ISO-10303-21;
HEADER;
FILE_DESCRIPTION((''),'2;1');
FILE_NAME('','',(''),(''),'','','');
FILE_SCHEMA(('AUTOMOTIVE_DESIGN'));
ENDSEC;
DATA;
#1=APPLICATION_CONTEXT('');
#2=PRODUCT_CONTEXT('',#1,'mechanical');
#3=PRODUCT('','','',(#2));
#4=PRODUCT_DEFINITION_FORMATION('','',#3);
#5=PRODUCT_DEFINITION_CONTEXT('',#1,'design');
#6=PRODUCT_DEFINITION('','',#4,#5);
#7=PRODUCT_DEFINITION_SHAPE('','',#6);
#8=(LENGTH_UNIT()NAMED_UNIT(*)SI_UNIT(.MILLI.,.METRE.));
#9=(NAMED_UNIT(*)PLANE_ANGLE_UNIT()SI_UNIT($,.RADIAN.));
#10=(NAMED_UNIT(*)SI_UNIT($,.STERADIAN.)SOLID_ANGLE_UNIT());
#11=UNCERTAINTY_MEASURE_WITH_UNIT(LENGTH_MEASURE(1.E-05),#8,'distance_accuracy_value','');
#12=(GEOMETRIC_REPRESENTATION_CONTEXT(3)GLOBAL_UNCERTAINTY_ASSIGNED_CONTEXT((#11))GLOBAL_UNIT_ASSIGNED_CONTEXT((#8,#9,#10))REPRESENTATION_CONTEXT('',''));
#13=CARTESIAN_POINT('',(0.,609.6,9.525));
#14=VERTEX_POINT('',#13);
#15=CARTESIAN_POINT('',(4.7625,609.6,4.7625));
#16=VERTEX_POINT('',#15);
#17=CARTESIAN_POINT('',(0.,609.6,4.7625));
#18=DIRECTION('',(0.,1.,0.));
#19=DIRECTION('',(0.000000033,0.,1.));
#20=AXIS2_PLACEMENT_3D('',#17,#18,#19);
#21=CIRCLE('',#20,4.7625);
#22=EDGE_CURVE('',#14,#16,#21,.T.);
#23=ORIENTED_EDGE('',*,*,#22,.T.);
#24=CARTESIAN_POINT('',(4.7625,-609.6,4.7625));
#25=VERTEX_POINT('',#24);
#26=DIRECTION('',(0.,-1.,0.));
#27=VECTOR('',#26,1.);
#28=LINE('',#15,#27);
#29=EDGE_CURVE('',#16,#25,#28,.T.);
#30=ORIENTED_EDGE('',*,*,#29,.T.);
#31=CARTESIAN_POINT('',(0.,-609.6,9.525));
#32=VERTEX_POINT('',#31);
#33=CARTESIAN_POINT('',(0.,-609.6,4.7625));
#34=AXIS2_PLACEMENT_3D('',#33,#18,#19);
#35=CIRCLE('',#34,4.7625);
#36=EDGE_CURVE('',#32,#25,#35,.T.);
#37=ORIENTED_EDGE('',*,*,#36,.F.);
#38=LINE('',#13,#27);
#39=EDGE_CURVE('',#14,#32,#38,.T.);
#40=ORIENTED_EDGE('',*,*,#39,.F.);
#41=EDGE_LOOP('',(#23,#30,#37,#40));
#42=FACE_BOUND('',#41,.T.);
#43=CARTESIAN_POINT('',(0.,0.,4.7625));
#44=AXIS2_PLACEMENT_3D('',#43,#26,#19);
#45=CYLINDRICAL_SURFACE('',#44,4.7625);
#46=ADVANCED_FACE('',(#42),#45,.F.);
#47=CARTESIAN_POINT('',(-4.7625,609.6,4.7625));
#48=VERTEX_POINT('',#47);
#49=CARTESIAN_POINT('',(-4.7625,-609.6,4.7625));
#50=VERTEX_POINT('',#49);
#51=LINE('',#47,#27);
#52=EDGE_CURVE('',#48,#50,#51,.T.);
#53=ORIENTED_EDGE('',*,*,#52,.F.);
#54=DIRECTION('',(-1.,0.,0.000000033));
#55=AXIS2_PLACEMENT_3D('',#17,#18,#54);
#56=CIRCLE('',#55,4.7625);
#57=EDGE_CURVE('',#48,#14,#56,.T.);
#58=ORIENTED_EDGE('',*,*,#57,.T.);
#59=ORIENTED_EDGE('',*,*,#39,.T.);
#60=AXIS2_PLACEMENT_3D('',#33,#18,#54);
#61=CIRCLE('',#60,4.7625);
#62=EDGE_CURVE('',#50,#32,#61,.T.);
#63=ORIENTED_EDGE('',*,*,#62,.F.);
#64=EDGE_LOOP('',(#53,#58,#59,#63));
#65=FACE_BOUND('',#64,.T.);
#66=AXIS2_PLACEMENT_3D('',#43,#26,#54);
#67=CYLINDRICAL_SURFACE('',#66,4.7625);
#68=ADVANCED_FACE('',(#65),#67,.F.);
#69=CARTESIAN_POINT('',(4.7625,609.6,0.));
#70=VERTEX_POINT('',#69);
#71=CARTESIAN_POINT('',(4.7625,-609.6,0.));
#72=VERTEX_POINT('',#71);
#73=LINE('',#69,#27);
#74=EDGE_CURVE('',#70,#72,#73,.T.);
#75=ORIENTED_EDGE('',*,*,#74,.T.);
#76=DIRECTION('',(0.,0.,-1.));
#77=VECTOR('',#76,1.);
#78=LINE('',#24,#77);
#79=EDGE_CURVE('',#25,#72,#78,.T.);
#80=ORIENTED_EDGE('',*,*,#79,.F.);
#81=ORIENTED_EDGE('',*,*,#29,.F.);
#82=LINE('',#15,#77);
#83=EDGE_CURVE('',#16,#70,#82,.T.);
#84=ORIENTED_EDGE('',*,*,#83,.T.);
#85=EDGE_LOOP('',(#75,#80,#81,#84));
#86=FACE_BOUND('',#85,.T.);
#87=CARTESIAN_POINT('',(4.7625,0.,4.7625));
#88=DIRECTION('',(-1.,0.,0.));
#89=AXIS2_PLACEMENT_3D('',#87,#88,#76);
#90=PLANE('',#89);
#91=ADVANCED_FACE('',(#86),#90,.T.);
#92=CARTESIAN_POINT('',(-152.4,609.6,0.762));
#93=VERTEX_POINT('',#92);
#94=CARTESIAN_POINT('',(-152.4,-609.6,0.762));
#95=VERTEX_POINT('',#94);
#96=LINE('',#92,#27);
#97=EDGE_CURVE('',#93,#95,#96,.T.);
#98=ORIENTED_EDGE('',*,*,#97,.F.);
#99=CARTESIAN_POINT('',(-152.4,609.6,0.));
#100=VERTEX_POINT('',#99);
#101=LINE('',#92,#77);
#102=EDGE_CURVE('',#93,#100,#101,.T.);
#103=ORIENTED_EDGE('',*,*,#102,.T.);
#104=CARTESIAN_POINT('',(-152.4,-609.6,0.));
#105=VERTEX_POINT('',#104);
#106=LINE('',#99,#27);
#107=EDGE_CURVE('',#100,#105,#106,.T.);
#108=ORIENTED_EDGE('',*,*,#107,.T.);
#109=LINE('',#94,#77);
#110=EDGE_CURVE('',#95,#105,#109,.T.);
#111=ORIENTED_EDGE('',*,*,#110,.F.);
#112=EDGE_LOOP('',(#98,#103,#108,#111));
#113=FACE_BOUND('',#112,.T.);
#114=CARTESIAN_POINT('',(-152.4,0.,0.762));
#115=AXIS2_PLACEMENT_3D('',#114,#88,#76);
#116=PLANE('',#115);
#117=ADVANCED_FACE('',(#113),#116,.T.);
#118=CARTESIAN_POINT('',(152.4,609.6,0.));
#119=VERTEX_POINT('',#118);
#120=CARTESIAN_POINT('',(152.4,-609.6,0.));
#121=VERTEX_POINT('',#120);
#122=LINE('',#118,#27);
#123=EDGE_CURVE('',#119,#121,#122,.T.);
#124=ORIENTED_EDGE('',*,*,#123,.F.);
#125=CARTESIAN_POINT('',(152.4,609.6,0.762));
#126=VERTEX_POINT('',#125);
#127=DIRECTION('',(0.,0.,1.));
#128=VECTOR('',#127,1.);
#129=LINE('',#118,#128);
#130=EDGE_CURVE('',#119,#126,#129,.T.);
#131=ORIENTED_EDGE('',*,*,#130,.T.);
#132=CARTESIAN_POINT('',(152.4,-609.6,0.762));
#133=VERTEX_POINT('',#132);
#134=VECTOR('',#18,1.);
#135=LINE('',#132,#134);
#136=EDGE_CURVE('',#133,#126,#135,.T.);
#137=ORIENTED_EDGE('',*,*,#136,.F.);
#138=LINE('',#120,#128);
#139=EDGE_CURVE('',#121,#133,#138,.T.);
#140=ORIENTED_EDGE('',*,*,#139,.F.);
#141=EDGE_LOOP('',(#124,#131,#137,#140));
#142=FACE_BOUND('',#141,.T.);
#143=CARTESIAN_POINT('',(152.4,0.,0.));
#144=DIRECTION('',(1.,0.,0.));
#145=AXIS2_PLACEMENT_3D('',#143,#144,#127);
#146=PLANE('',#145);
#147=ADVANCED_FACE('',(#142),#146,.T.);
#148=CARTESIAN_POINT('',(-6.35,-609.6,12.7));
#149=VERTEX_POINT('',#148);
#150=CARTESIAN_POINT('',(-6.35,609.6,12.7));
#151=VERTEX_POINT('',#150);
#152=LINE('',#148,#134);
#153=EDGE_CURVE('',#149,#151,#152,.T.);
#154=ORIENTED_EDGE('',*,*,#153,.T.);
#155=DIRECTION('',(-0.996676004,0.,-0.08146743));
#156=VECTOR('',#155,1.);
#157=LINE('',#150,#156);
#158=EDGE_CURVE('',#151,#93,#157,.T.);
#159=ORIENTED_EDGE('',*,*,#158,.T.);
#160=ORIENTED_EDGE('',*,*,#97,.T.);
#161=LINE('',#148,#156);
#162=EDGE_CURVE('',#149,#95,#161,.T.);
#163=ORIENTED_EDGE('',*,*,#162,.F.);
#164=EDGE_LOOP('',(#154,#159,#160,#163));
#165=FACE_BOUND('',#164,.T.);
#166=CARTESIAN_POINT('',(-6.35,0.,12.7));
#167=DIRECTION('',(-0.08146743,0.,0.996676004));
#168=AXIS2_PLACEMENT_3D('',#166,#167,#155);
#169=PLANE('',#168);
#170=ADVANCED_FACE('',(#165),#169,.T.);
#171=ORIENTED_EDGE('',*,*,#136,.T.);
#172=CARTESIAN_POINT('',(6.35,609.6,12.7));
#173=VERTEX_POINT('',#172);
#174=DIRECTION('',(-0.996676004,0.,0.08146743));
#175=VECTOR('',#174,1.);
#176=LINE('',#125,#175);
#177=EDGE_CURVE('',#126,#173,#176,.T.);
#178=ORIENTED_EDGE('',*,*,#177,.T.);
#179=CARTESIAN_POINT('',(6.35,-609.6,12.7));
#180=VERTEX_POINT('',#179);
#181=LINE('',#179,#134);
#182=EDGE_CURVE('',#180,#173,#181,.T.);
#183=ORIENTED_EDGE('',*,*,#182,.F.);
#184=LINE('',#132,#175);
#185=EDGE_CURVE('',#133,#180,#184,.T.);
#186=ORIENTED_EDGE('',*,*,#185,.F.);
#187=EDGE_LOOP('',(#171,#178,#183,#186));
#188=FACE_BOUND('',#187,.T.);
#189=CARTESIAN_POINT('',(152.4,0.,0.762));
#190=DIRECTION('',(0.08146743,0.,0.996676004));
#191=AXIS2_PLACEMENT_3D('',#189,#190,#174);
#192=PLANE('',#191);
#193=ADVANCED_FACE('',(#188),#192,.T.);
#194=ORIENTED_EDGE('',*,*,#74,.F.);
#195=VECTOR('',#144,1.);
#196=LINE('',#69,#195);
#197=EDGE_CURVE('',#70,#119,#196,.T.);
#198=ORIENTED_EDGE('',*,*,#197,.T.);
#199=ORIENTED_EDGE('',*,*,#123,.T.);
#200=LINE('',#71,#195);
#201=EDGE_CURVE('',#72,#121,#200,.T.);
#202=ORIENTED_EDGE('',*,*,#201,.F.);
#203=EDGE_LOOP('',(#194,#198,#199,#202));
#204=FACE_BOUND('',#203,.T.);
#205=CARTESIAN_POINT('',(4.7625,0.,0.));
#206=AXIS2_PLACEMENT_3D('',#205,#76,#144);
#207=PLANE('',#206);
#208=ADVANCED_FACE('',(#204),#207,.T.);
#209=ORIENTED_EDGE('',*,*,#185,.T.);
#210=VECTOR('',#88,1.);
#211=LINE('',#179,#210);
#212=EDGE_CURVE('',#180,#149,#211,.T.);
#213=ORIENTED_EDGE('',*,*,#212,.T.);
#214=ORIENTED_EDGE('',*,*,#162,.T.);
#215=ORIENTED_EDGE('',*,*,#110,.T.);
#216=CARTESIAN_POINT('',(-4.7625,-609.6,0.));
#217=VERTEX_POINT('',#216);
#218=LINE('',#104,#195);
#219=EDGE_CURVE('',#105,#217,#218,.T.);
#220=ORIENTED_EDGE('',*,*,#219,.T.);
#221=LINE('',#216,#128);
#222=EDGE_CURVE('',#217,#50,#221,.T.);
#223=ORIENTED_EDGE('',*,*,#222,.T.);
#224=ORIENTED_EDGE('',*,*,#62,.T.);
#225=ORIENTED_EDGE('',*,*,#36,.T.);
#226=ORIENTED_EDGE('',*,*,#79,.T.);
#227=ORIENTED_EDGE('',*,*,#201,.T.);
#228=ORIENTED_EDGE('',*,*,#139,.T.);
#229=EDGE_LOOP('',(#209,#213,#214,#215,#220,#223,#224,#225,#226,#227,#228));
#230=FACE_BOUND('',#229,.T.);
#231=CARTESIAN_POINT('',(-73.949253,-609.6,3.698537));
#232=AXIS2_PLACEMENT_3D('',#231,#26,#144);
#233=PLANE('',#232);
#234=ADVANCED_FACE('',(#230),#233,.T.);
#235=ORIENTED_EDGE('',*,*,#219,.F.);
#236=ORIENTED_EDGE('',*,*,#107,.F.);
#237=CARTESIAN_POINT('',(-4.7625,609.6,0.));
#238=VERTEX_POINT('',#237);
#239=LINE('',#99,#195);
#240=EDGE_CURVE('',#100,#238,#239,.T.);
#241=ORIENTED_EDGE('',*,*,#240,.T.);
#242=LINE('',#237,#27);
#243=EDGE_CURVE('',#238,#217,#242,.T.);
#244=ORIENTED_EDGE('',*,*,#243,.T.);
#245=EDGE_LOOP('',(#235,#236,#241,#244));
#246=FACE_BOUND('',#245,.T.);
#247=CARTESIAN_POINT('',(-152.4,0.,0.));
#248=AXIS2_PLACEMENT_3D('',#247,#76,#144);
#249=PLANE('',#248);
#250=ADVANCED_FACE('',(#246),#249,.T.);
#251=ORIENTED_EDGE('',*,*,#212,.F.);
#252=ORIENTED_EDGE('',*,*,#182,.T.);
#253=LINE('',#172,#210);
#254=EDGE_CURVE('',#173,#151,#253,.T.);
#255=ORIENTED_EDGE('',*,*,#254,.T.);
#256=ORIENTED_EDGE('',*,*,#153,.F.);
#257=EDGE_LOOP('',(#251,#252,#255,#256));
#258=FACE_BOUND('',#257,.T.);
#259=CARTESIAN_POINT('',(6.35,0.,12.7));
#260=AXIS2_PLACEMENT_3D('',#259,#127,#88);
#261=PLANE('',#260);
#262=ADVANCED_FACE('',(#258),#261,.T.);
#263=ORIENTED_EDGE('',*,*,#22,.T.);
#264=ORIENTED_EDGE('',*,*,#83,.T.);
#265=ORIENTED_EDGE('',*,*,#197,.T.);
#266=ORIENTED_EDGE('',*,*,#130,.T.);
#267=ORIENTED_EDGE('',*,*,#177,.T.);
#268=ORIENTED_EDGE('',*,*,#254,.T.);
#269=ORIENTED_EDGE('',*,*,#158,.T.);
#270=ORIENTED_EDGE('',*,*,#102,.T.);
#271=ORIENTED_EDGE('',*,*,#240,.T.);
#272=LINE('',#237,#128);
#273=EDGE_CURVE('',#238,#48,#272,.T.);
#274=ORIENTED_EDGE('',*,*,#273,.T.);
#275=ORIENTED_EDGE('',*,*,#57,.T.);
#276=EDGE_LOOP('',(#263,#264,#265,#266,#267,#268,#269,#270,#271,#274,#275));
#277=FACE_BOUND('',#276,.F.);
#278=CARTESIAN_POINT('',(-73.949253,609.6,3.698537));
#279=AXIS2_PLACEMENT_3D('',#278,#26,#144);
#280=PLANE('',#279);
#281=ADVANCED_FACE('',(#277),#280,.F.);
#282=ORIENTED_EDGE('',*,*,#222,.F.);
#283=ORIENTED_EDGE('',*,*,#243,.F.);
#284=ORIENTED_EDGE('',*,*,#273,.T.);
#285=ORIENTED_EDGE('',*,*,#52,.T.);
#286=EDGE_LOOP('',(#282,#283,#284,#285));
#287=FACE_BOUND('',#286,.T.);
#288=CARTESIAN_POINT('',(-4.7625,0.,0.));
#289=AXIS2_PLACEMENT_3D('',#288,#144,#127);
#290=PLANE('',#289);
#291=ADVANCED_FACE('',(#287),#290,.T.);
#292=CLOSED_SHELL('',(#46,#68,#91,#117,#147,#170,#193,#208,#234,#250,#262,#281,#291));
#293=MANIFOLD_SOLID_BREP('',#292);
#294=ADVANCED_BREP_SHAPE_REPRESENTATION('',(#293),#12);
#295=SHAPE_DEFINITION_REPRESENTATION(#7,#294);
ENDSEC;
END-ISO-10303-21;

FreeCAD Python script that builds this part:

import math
import FreeCAD as App
import Part
import Sketcher

V = App.Vector
Q = App.Units.Quantity

doc = App.newDocument("Part")
body = doc.addObject("PartDesign::Body", "Body")

sketch1 = body.newObject("Sketcher::SketchObject", "Sketch")
sketch1.AttachmentSupport = (doc.getObject("XZ_Plane"), [""])
sketch1.MapMode = "FlatFace"
sketch1.addGeometry([
    Part.LineSegment(V(-6.3, 12.7, 0), V(-152.4, 0.8, 0)),
    Part.LineSegment(V(-152.4, 0.8, 0), V(-152.4, 0, 0)),
    Part.LineSegment(V(-152.4, 0, 0), V(-4.8, 0, 0)),
    Part.LineSegment(V(-4.8, 0, 0), V(-4.8, 4.8, 0)),
    Part.ArcOfCircle(Part.Circle(V(0, 4.8, 0), V(0, 0, 1), 4.8), math.radians(90), math.radians(180)),
    Part.ArcOfCircle(Part.Circle(V(0, 4.8, 0), V(0, 0, 1), 4.8), math.radians(0), math.radians(90)),
    Part.LineSegment(V(4.8, 4.8, 0), V(4.8, 0, 0)),
    Part.LineSegment(V(4.8, 0, 0), V(152.4, 0, 0)),
    Part.LineSegment(V(152.4, 0, 0), V(152.4, 0.8, 0)),
    Part.LineSegment(V(152.4, 0.8, 0), V(6.3, 12.7, 0)),
    Part.LineSegment(V(6.3, 12.7, 0), V(-6.3, 12.7, 0)),
], False)
sketch1.addConstraint([
    Sketcher.Constraint("Coincident", 0, 2, 1, 1),
    Sketcher.Constraint("Coincident", 1, 2, 2, 1),
    Sketcher.Constraint("Coincident", 2, 2, 3, 1),
    Sketcher.Constraint("Tangent", 3, 2, 4, 2),
    Sketcher.Constraint("Tangent", 4, 1, 5, 2),
    Sketcher.Constraint("Tangent", 5, 1, 6, 1),
    Sketcher.Constraint("Coincident", 6, 2, 7, 1),
    Sketcher.Constraint("Coincident", 7, 2, 8, 1),
    Sketcher.Constraint("Coincident", 8, 2, 9, 1),
    Sketcher.Constraint("Coincident", 9, 2, 10, 1),
    Sketcher.Constraint("Coincident", 10, 2, 0, 1),
    Sketcher.Constraint("Vertical", 1),
    Sketcher.Constraint("Horizontal", 2),
    Sketcher.Constraint("Vertical", 3),
    Sketcher.Constraint("Vertical", 6),
    Sketcher.Constraint("Horizontal", 7),
    Sketcher.Constraint("Vertical", 8),
    Sketcher.Constraint("Horizontal", 10),
    Sketcher.Constraint("Equal", 4, 5),
    Sketcher.Constraint("Symmetric", 2, 2, 6, 2, -1, 1),
    Sketcher.Constraint("Symmetric", 1, 2, 7, 2, -2),
    Sketcher.Constraint("PointOnObject", 4, 1, -2),
    Sketcher.Constraint("Horizontal", 0, 2, 8, 2),
    Sketcher.Constraint("Equal", 0, 9),
    Sketcher.Constraint("DistanceX", 10, 2, 10, 1, Q("0.5 in")),
    Sketcher.Constraint("DistanceX", 0, 2, -1, 1, Q("6 in")),
    Sketcher.Constraint("Radius", 4, Q("0.1875 in")),
    Sketcher.Constraint("DistanceY", 1, 2, 1, 1, Q("0.03 in")),
    Sketcher.Constraint("DistanceY", -1, 1, 9, 2, Q("0.5 in")),
    Sketcher.Constraint("DistanceY", 3, 1, 3, 2, Q("0.1875 in")),
])
pad1 = body.newObject("PartDesign::Pad", "Pad")
pad1.Profile = sketch1
pad1.Length = Q("48 in")
pad1.Midplane = True

doc.recompute()
